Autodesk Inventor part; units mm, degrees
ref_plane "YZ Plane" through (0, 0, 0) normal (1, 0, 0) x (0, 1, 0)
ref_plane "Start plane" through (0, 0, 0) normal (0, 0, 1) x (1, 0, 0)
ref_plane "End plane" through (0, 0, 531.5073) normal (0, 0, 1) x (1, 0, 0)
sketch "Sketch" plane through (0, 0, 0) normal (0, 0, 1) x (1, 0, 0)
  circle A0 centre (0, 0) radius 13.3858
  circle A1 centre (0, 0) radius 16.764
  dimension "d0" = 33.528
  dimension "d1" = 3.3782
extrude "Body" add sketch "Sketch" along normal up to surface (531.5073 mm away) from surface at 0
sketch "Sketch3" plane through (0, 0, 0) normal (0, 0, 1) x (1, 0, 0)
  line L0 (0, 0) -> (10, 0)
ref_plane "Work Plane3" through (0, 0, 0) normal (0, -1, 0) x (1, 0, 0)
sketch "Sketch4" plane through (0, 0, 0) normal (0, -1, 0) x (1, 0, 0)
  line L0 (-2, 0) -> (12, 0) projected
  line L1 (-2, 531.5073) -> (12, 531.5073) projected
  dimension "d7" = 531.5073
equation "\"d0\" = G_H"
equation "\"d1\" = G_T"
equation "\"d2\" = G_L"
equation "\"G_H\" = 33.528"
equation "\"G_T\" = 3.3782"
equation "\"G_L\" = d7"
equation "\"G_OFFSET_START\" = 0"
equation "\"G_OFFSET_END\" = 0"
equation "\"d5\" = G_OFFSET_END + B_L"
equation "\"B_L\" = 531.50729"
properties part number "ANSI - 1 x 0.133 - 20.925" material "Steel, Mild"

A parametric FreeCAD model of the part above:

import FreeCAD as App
import Part
import Sketcher
Q = App.Units.Quantity

doc = App.newDocument("Part")
body = doc.addObject("PartDesign::Body", "Body")

sketch1 = body.newObject("Sketcher::SketchObject", "Sketch")
sketch1.AttachmentSupport = (doc.getObject("XY_Plane"), [""])
sketch1.MapMode = "FlatFace"
sketch1.addGeometry(Part.Circle(App.Vector(0, 0, 0), App.Vector(0, 0, 1), 16.764), False)
sketch1.addGeometry(Part.Circle(App.Vector(0, 0, 0), App.Vector(0, 0, 1), 13.3858), False)
sketch1.addConstraint(Sketcher.Constraint("Coincident", 0, 3, -1, 1))
sketch1.addConstraint(Sketcher.Constraint("Coincident", 1, 3, -1, 1))
sketch1.addConstraint(Sketcher.Constraint("Diameter", 0, Q("1.32 in")))
sketch1.addConstraint(Sketcher.Constraint("Diameter", 1, Q("1.054 in")))
pad1 = body.newObject("PartDesign::Pad", "Pad")
pad1.Profile = sketch1
pad1.Length = 531.5073

doc.recompute()
